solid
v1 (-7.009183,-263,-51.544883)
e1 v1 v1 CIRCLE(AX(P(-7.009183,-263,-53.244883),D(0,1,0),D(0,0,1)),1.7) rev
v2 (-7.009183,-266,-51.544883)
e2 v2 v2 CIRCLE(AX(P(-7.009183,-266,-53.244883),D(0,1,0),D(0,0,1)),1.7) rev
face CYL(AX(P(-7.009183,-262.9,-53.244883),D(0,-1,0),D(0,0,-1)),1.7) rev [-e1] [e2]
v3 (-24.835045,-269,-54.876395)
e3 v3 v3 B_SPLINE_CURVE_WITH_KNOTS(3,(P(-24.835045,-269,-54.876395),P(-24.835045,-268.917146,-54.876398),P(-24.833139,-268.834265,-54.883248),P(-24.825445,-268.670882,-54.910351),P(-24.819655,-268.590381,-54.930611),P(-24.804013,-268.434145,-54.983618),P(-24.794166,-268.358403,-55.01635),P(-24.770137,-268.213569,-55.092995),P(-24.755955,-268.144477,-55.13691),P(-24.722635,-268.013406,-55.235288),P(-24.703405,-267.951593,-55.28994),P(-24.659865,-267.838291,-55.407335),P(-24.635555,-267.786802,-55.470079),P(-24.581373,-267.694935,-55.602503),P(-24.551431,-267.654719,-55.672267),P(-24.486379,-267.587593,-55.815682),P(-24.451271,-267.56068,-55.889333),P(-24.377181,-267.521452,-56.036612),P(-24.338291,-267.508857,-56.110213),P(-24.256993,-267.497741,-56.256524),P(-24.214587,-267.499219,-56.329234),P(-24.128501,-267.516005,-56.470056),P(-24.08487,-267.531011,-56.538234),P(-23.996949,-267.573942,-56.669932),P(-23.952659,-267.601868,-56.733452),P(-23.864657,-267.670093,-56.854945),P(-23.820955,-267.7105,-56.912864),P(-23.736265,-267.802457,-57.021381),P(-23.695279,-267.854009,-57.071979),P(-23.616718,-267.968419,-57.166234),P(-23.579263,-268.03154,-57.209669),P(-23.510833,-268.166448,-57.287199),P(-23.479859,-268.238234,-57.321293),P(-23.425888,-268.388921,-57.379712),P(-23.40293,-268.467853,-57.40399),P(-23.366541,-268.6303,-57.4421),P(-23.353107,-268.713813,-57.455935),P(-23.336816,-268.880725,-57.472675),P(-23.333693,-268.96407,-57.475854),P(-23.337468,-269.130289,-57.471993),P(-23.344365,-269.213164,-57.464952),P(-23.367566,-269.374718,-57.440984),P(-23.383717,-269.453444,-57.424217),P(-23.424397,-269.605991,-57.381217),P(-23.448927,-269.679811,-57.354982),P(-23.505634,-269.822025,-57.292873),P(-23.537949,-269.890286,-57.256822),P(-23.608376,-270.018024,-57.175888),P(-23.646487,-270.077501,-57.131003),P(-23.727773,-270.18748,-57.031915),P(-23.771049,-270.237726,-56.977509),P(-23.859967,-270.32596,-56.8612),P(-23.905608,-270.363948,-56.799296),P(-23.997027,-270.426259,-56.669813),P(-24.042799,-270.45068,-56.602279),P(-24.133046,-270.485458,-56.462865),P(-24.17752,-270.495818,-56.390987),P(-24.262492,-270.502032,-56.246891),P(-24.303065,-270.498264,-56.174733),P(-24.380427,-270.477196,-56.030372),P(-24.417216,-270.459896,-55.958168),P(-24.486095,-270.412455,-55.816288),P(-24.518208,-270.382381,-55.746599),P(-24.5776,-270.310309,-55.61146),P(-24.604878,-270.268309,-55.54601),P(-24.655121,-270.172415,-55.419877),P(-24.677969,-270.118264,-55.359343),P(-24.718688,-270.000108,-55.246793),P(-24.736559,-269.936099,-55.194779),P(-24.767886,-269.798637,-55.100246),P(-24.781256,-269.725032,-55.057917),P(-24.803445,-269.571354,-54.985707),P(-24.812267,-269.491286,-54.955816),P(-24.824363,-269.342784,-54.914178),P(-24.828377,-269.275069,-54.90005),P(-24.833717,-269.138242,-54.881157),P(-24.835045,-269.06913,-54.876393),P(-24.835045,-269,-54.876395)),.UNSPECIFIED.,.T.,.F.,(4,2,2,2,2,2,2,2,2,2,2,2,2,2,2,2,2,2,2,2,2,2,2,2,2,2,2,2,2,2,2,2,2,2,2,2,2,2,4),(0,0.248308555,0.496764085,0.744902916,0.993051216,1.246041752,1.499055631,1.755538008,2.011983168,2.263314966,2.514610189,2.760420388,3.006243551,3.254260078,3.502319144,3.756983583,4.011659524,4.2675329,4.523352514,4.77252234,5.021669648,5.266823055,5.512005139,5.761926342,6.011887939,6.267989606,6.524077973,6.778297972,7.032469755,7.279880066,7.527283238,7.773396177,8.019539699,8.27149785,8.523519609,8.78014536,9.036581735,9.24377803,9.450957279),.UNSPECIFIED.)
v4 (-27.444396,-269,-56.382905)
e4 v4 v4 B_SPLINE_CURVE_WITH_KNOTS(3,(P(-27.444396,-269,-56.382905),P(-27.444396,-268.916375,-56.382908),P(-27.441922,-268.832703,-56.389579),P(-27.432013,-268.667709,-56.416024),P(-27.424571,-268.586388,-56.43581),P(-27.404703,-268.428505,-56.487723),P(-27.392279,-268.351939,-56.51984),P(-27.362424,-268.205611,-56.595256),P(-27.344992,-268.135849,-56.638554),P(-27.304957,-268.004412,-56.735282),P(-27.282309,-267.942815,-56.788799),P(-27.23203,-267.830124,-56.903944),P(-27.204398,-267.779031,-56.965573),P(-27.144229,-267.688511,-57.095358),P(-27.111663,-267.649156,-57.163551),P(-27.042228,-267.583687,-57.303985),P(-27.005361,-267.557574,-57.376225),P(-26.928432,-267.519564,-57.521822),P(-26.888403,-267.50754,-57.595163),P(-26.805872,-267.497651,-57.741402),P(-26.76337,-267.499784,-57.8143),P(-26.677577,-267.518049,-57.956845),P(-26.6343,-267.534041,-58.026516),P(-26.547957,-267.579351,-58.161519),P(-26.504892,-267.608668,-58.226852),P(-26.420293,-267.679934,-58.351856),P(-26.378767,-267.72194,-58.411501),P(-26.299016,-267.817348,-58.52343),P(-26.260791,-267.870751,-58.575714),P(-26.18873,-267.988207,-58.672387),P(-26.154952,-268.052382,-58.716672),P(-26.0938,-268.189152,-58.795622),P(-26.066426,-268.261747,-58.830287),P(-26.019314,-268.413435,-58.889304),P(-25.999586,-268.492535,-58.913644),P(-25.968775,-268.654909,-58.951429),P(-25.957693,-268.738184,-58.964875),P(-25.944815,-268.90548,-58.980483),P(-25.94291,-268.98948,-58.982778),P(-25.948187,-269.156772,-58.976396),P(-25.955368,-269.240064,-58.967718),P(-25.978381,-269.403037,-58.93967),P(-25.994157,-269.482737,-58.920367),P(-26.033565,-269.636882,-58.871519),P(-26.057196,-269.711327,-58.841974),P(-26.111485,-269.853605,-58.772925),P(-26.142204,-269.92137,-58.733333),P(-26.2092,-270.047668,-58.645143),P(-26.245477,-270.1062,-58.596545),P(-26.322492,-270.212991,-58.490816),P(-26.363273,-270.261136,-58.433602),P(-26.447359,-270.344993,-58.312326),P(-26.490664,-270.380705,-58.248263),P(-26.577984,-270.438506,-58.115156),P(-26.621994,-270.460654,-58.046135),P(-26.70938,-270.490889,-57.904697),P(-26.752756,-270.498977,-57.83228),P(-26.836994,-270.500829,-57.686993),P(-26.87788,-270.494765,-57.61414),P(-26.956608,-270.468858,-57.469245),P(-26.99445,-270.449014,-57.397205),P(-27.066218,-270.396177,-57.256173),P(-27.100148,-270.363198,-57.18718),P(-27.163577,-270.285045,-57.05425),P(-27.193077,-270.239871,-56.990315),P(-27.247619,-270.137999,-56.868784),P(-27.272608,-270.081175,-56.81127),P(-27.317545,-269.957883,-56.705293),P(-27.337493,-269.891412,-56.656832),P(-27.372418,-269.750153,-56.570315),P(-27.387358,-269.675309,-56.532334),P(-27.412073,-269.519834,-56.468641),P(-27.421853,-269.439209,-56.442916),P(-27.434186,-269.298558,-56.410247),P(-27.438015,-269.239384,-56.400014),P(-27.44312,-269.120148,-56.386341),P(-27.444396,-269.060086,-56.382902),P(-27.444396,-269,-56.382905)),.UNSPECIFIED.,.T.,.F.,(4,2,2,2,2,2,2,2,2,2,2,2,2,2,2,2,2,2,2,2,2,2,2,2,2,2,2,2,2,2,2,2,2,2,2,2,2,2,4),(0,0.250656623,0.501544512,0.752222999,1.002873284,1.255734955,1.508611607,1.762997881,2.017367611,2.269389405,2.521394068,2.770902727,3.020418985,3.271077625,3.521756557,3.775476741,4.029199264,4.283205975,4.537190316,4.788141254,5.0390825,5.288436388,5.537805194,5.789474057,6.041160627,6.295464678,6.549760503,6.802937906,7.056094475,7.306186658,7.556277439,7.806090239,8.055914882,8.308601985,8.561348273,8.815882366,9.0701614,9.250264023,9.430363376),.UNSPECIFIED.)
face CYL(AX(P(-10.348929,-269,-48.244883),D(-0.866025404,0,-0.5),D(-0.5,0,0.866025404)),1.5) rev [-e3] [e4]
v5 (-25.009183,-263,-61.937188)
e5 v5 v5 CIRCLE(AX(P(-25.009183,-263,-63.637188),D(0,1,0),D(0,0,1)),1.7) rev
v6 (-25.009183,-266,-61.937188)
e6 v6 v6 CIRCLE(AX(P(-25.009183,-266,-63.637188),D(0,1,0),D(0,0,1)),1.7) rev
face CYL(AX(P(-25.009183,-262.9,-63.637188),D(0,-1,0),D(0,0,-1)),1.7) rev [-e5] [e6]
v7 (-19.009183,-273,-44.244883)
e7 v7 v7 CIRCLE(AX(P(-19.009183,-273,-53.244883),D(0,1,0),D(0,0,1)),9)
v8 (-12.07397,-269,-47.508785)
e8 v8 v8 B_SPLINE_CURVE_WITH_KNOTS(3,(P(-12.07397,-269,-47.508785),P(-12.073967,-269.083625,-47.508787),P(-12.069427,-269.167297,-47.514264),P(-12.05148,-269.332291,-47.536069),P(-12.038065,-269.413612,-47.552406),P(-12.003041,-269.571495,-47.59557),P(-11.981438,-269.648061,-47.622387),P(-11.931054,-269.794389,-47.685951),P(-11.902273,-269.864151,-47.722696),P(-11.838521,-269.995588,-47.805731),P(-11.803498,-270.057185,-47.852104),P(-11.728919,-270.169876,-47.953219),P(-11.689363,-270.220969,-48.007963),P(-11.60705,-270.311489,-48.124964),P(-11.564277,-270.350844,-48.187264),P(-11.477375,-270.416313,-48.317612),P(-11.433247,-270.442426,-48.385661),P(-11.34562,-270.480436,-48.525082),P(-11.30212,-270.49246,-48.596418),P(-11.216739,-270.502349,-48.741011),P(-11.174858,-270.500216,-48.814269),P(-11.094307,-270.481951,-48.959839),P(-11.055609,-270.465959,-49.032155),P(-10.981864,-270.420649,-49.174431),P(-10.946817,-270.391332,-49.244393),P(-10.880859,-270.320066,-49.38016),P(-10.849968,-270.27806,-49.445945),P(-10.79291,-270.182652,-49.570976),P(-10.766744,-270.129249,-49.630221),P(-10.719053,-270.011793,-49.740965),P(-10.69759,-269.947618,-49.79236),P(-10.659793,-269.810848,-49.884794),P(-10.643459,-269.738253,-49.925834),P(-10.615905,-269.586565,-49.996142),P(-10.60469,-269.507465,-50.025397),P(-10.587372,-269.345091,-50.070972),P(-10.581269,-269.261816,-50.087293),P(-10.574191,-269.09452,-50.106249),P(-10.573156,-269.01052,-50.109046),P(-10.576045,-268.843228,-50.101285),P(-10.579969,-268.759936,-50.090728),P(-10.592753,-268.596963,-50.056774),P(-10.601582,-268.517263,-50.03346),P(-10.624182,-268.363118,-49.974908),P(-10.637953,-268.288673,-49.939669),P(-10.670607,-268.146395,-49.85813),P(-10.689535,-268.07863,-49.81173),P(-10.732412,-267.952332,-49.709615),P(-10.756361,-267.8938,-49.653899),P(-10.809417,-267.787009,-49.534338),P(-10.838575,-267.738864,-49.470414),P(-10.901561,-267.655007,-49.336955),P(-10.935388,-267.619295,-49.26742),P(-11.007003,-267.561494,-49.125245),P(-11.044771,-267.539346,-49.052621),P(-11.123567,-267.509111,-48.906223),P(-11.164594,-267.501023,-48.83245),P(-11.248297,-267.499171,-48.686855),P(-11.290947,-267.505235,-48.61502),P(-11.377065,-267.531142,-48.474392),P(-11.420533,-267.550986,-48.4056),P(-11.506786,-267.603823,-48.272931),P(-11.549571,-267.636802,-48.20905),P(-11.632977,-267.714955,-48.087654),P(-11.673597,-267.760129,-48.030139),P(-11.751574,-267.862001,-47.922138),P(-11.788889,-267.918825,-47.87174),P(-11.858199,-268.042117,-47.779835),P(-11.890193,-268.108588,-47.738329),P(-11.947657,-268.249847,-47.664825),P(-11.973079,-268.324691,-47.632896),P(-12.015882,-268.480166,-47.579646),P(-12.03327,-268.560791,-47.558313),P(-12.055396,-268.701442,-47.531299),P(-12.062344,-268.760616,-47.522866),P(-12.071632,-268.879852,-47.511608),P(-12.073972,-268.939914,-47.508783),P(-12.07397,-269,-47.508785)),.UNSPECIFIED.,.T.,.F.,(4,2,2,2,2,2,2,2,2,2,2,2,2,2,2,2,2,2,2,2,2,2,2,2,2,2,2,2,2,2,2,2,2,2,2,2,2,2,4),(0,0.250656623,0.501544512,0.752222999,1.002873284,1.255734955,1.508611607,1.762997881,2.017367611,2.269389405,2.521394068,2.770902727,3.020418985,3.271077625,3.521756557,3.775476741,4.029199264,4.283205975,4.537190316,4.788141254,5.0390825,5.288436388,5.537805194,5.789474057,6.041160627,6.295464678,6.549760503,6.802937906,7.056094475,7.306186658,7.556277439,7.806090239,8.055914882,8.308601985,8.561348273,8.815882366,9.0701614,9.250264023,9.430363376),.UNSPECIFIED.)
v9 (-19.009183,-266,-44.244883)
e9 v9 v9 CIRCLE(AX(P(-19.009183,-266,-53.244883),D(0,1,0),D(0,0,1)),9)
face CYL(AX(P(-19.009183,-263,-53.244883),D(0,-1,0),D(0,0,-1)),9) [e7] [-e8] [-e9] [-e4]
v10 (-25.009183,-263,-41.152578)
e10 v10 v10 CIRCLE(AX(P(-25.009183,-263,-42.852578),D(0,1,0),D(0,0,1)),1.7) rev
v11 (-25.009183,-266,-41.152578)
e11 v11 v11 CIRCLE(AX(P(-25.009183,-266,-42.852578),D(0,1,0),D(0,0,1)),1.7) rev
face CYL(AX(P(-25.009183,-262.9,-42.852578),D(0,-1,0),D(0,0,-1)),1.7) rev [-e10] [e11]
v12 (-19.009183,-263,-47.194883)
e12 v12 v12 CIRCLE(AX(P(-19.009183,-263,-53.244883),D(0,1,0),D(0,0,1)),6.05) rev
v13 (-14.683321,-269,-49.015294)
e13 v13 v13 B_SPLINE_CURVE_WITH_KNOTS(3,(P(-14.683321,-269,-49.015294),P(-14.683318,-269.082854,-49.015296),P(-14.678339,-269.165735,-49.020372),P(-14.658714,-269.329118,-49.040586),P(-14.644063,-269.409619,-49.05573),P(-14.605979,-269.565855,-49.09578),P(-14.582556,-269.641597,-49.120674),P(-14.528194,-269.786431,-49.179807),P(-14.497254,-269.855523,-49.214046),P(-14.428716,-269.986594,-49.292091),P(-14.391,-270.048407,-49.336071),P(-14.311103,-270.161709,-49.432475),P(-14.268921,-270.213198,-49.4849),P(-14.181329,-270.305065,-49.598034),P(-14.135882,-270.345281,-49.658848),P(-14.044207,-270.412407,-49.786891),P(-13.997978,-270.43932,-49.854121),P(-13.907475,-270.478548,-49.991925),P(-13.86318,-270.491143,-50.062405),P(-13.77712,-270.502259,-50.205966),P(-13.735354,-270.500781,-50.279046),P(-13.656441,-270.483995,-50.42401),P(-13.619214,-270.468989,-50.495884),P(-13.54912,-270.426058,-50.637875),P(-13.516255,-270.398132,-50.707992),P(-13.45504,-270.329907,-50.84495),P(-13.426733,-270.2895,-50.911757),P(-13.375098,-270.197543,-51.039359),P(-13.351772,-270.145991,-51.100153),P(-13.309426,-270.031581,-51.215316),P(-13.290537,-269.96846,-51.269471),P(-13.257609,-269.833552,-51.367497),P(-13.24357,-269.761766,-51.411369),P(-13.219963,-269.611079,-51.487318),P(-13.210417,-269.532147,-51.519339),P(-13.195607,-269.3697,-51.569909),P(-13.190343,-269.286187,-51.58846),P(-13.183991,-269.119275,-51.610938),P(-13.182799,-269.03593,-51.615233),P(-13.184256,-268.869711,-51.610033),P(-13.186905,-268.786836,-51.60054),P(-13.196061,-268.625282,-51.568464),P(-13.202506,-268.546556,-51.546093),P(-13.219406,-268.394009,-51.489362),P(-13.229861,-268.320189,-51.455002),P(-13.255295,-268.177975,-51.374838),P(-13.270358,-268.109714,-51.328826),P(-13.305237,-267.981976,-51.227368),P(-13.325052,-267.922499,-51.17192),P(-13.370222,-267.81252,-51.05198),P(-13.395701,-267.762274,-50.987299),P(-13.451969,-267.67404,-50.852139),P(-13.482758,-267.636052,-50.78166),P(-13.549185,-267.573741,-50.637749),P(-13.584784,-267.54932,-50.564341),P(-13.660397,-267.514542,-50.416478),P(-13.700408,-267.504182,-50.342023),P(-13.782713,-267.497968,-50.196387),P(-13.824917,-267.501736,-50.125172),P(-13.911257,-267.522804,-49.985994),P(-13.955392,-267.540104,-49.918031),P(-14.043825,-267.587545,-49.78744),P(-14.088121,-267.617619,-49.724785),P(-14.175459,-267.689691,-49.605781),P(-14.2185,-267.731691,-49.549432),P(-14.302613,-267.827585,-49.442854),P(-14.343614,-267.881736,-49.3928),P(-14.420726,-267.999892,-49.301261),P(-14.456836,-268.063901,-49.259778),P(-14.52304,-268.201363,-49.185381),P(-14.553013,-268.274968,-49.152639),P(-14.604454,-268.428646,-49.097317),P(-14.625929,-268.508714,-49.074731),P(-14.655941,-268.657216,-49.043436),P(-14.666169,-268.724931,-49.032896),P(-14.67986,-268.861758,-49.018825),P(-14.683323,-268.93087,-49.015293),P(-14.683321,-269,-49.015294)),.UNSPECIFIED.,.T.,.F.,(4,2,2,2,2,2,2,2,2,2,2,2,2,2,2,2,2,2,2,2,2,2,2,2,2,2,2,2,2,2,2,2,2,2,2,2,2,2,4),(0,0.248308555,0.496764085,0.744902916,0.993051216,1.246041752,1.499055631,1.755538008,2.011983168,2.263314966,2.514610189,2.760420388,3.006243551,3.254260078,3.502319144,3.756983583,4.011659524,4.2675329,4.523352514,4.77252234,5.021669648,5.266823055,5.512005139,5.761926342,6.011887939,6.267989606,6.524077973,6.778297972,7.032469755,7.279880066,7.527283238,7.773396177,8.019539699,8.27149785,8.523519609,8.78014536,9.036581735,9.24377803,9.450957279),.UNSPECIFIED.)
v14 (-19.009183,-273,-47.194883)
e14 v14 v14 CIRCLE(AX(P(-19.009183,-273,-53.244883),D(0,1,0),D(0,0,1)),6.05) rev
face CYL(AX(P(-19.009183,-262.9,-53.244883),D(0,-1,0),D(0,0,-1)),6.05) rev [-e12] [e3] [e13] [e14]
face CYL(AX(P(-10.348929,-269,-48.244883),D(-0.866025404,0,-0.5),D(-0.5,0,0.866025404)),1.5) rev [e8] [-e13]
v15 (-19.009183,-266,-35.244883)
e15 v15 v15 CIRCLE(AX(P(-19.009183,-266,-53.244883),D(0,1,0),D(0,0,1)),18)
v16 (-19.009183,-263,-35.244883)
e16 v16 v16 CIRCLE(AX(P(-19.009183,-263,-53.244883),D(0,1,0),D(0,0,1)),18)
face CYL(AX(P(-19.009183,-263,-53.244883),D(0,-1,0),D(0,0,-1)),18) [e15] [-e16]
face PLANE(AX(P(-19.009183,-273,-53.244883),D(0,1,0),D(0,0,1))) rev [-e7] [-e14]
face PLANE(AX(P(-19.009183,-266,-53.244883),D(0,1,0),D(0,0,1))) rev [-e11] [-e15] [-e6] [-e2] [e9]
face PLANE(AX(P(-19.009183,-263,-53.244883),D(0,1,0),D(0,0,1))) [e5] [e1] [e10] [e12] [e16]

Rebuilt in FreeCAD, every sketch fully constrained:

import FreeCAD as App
import Part
import Sketcher

V = App.Vector

doc = App.newDocument("Part")
params = doc.addObject("Spreadsheet::Sheet", "Params")
for row, (alias, value) in enumerate([
    ("sketch1_diameter", "18 mm"),
    ("pad1_length", "10 mm"),
    ("sketch2_diameter", "36 mm"),
    ("pad2_length", "3 mm"),
    ("sketch3_diameter", "12.1 mm"),
    ("pocket1_length", "10.2 mm"),
    ("sketch4_diameter", "3.4 mm"),
    ("pocket2_length", "3.2 mm"),
    ("sketch5_diameter", "3 mm"),
    ("pocket3_length", "20 mm"),
], start=1):
    params.set(f"A{row}", alias)
    params.set(f"B{row}", "=" + value)
    params.setAlias(f"B{row}", alias)

body = doc.addObject("PartDesign::Body", "Body")

sketch1 = doc.addObject("Sketcher::SketchObject", "Sketch")
body.addObject(sketch1)
sketch1.AttachmentSupport = (doc.XZ_Plane, [""])
sketch1.MapMode = "FlatFace"
sketch1.AttachmentOffset = App.Placement(V(0, 0, 273), App.Rotation())
sketch1.addGeometry(Part.Circle(V(-19, -53, 0), V(0, 0, 1), 9), False)
sketch1.addConstraint([
    Sketcher.Constraint("Diameter", 0, 18.0),
    Sketcher.Constraint("DistanceX", 0, 3, -1, 1, 19.009183),
    Sketcher.Constraint("DistanceY", 0, 3, -1, 1, 53.244883),
])
sketch1.setExpression("Constraints[0]", "Params.sketch1_diameter")
pad1 = doc.addObject("PartDesign::Pad", "Pad")
body.addObject(pad1)
pad1.Profile = sketch1
pad1.setExpression("Length", "Params.pad1_length")
pad1.Reversed = True

sketch2 = doc.addObject("Sketcher::SketchObject", "Sketch001")
body.addObject(sketch2)
sketch2.AttachmentSupport = (doc.XZ_Plane, [""])
sketch2.MapMode = "FlatFace"
sketch2.AttachmentOffset = App.Placement(V(0, 0, 266), App.Rotation())
sketch2.addGeometry(Part.Circle(V(-19, -53, 0), V(0, 0, 1), 18), False)
sketch2.addConstraint([
    Sketcher.Constraint("Diameter", 0, 36.0),
    Sketcher.Constraint("DistanceX", 0, 3, -1, 1, 19.009183),
    Sketcher.Constraint("DistanceY", 0, 3, -1, 1, 53.244883),
])
sketch2.setExpression("Constraints[0]", "Params.sketch2_diameter")
pad2 = doc.addObject("PartDesign::Pad", "Pad001")
body.addObject(pad2)
pad2.Profile = sketch2
pad2.setExpression("Length", "Params.pad2_length")
pad2.Reversed = True

sketch3 = doc.addObject("Sketcher::SketchObject", "Sketch002")
body.addObject(sketch3)
sketch3.AttachmentSupport = (doc.XZ_Plane, [""])
sketch3.MapMode = "FlatFace"
sketch3.AttachmentOffset = App.Placement(V(0, 0, 273.1), App.Rotation())
sketch3.addGeometry(Part.Circle(V(-19, -53, 0), V(0, 0, 1), 6), False)
sketch3.addConstraint([
    Sketcher.Constraint("Diameter", 0, 12.1),
    Sketcher.Constraint("DistanceX", 0, 3, -1, 1, 19.009183),
    Sketcher.Constraint("DistanceY", 0, 3, -1, 1, 53.244883),
])
sketch3.setExpression("Constraints[0]", "Params.sketch3_diameter")
pocket1 = doc.addObject("PartDesign::Pocket", "Pocket")
body.addObject(pocket1)
pocket1.Profile = sketch3
pocket1.setExpression("Length", "Params.pocket1_length")

sketch4 = doc.addObject("Sketcher::SketchObject", "Sketch003")
body.addObject(sketch4)
sketch4.AttachmentSupport = (doc.XZ_Plane, [""])
sketch4.MapMode = "FlatFace"
sketch4.AttachmentOffset = App.Placement(V(0, 0, 266.1), App.Rotation())
sketch4.addGeometry([
    Part.Circle(V(-7, -53.2, 0), V(0, 0, 1), 1.7),
    Part.Circle(V(-25, -42.9, 0), V(0, 0, 1), 1.7),
    Part.Circle(V(-25, -63.6, 0), V(0, 0, 1), 1.7),
], False)
sketch4.addConstraint([
    Sketcher.Constraint("Equal", 0, 1),
    Sketcher.Constraint("Equal", 1, 2),
    Sketcher.Constraint("Vertical", 1, 3, 2, 3),
    Sketcher.Constraint("Diameter", 0, 3.4),
    Sketcher.Constraint("DistanceX", 1, 3, 0, 3, 18.0),
    Sketcher.Constraint("DistanceY", 1, 3, -1, 1, 42.852578),
    Sketcher.Constraint("DistanceY", 2, 3, 1, 3, 20.78461),
    Sketcher.Constraint("DistanceX", 0, 3, -1, 1, 7.009183),
    Sketcher.Constraint("DistanceY", 0, 3, -1, 1, 53.244883),
])
sketch4.setExpression("Constraints[3]", "Params.sketch4_diameter")
pocket2 = doc.addObject("PartDesign::Pocket", "Pocket001")
body.addObject(pocket2)
pocket2.Profile = sketch4
pocket2.setExpression("Length", "Params.pocket2_length")

sketch5 = doc.addObject("Sketcher::SketchObject", "Sketch004")
body.addObject(sketch5)
sketch5.Placement = App.Placement(V(-45.972852, 0, -26.542438), App.Rotation(V(0.5, 0, -0.866025404), V(0, 1, 0), V(0.866025404, 0, 0.5), "ZXY"))
sketch5.addGeometry(Part.Circle(V(36.6, -269, 0), V(0, 0, 1), 1.5), False)
sketch5.addConstraint([
    Sketcher.Constraint("Diameter", 0, 3.0),
    Sketcher.Constraint("DistanceY", 0, 3, -1, 1, 269.0),
    Sketcher.Constraint("DistanceX", -1, 1, 0, 3, 36.60683),
])
sketch5.setExpression("Constraints[0]", "Params.sketch5_diameter")
pocket3 = doc.addObject("PartDesign::Pocket", "Pocket002")
body.addObject(pocket3)
pocket3.Profile = sketch5
pocket3.setExpression("Length", "Params.pocket3_length")
pocket3.Reversed = True

doc.recompute()
